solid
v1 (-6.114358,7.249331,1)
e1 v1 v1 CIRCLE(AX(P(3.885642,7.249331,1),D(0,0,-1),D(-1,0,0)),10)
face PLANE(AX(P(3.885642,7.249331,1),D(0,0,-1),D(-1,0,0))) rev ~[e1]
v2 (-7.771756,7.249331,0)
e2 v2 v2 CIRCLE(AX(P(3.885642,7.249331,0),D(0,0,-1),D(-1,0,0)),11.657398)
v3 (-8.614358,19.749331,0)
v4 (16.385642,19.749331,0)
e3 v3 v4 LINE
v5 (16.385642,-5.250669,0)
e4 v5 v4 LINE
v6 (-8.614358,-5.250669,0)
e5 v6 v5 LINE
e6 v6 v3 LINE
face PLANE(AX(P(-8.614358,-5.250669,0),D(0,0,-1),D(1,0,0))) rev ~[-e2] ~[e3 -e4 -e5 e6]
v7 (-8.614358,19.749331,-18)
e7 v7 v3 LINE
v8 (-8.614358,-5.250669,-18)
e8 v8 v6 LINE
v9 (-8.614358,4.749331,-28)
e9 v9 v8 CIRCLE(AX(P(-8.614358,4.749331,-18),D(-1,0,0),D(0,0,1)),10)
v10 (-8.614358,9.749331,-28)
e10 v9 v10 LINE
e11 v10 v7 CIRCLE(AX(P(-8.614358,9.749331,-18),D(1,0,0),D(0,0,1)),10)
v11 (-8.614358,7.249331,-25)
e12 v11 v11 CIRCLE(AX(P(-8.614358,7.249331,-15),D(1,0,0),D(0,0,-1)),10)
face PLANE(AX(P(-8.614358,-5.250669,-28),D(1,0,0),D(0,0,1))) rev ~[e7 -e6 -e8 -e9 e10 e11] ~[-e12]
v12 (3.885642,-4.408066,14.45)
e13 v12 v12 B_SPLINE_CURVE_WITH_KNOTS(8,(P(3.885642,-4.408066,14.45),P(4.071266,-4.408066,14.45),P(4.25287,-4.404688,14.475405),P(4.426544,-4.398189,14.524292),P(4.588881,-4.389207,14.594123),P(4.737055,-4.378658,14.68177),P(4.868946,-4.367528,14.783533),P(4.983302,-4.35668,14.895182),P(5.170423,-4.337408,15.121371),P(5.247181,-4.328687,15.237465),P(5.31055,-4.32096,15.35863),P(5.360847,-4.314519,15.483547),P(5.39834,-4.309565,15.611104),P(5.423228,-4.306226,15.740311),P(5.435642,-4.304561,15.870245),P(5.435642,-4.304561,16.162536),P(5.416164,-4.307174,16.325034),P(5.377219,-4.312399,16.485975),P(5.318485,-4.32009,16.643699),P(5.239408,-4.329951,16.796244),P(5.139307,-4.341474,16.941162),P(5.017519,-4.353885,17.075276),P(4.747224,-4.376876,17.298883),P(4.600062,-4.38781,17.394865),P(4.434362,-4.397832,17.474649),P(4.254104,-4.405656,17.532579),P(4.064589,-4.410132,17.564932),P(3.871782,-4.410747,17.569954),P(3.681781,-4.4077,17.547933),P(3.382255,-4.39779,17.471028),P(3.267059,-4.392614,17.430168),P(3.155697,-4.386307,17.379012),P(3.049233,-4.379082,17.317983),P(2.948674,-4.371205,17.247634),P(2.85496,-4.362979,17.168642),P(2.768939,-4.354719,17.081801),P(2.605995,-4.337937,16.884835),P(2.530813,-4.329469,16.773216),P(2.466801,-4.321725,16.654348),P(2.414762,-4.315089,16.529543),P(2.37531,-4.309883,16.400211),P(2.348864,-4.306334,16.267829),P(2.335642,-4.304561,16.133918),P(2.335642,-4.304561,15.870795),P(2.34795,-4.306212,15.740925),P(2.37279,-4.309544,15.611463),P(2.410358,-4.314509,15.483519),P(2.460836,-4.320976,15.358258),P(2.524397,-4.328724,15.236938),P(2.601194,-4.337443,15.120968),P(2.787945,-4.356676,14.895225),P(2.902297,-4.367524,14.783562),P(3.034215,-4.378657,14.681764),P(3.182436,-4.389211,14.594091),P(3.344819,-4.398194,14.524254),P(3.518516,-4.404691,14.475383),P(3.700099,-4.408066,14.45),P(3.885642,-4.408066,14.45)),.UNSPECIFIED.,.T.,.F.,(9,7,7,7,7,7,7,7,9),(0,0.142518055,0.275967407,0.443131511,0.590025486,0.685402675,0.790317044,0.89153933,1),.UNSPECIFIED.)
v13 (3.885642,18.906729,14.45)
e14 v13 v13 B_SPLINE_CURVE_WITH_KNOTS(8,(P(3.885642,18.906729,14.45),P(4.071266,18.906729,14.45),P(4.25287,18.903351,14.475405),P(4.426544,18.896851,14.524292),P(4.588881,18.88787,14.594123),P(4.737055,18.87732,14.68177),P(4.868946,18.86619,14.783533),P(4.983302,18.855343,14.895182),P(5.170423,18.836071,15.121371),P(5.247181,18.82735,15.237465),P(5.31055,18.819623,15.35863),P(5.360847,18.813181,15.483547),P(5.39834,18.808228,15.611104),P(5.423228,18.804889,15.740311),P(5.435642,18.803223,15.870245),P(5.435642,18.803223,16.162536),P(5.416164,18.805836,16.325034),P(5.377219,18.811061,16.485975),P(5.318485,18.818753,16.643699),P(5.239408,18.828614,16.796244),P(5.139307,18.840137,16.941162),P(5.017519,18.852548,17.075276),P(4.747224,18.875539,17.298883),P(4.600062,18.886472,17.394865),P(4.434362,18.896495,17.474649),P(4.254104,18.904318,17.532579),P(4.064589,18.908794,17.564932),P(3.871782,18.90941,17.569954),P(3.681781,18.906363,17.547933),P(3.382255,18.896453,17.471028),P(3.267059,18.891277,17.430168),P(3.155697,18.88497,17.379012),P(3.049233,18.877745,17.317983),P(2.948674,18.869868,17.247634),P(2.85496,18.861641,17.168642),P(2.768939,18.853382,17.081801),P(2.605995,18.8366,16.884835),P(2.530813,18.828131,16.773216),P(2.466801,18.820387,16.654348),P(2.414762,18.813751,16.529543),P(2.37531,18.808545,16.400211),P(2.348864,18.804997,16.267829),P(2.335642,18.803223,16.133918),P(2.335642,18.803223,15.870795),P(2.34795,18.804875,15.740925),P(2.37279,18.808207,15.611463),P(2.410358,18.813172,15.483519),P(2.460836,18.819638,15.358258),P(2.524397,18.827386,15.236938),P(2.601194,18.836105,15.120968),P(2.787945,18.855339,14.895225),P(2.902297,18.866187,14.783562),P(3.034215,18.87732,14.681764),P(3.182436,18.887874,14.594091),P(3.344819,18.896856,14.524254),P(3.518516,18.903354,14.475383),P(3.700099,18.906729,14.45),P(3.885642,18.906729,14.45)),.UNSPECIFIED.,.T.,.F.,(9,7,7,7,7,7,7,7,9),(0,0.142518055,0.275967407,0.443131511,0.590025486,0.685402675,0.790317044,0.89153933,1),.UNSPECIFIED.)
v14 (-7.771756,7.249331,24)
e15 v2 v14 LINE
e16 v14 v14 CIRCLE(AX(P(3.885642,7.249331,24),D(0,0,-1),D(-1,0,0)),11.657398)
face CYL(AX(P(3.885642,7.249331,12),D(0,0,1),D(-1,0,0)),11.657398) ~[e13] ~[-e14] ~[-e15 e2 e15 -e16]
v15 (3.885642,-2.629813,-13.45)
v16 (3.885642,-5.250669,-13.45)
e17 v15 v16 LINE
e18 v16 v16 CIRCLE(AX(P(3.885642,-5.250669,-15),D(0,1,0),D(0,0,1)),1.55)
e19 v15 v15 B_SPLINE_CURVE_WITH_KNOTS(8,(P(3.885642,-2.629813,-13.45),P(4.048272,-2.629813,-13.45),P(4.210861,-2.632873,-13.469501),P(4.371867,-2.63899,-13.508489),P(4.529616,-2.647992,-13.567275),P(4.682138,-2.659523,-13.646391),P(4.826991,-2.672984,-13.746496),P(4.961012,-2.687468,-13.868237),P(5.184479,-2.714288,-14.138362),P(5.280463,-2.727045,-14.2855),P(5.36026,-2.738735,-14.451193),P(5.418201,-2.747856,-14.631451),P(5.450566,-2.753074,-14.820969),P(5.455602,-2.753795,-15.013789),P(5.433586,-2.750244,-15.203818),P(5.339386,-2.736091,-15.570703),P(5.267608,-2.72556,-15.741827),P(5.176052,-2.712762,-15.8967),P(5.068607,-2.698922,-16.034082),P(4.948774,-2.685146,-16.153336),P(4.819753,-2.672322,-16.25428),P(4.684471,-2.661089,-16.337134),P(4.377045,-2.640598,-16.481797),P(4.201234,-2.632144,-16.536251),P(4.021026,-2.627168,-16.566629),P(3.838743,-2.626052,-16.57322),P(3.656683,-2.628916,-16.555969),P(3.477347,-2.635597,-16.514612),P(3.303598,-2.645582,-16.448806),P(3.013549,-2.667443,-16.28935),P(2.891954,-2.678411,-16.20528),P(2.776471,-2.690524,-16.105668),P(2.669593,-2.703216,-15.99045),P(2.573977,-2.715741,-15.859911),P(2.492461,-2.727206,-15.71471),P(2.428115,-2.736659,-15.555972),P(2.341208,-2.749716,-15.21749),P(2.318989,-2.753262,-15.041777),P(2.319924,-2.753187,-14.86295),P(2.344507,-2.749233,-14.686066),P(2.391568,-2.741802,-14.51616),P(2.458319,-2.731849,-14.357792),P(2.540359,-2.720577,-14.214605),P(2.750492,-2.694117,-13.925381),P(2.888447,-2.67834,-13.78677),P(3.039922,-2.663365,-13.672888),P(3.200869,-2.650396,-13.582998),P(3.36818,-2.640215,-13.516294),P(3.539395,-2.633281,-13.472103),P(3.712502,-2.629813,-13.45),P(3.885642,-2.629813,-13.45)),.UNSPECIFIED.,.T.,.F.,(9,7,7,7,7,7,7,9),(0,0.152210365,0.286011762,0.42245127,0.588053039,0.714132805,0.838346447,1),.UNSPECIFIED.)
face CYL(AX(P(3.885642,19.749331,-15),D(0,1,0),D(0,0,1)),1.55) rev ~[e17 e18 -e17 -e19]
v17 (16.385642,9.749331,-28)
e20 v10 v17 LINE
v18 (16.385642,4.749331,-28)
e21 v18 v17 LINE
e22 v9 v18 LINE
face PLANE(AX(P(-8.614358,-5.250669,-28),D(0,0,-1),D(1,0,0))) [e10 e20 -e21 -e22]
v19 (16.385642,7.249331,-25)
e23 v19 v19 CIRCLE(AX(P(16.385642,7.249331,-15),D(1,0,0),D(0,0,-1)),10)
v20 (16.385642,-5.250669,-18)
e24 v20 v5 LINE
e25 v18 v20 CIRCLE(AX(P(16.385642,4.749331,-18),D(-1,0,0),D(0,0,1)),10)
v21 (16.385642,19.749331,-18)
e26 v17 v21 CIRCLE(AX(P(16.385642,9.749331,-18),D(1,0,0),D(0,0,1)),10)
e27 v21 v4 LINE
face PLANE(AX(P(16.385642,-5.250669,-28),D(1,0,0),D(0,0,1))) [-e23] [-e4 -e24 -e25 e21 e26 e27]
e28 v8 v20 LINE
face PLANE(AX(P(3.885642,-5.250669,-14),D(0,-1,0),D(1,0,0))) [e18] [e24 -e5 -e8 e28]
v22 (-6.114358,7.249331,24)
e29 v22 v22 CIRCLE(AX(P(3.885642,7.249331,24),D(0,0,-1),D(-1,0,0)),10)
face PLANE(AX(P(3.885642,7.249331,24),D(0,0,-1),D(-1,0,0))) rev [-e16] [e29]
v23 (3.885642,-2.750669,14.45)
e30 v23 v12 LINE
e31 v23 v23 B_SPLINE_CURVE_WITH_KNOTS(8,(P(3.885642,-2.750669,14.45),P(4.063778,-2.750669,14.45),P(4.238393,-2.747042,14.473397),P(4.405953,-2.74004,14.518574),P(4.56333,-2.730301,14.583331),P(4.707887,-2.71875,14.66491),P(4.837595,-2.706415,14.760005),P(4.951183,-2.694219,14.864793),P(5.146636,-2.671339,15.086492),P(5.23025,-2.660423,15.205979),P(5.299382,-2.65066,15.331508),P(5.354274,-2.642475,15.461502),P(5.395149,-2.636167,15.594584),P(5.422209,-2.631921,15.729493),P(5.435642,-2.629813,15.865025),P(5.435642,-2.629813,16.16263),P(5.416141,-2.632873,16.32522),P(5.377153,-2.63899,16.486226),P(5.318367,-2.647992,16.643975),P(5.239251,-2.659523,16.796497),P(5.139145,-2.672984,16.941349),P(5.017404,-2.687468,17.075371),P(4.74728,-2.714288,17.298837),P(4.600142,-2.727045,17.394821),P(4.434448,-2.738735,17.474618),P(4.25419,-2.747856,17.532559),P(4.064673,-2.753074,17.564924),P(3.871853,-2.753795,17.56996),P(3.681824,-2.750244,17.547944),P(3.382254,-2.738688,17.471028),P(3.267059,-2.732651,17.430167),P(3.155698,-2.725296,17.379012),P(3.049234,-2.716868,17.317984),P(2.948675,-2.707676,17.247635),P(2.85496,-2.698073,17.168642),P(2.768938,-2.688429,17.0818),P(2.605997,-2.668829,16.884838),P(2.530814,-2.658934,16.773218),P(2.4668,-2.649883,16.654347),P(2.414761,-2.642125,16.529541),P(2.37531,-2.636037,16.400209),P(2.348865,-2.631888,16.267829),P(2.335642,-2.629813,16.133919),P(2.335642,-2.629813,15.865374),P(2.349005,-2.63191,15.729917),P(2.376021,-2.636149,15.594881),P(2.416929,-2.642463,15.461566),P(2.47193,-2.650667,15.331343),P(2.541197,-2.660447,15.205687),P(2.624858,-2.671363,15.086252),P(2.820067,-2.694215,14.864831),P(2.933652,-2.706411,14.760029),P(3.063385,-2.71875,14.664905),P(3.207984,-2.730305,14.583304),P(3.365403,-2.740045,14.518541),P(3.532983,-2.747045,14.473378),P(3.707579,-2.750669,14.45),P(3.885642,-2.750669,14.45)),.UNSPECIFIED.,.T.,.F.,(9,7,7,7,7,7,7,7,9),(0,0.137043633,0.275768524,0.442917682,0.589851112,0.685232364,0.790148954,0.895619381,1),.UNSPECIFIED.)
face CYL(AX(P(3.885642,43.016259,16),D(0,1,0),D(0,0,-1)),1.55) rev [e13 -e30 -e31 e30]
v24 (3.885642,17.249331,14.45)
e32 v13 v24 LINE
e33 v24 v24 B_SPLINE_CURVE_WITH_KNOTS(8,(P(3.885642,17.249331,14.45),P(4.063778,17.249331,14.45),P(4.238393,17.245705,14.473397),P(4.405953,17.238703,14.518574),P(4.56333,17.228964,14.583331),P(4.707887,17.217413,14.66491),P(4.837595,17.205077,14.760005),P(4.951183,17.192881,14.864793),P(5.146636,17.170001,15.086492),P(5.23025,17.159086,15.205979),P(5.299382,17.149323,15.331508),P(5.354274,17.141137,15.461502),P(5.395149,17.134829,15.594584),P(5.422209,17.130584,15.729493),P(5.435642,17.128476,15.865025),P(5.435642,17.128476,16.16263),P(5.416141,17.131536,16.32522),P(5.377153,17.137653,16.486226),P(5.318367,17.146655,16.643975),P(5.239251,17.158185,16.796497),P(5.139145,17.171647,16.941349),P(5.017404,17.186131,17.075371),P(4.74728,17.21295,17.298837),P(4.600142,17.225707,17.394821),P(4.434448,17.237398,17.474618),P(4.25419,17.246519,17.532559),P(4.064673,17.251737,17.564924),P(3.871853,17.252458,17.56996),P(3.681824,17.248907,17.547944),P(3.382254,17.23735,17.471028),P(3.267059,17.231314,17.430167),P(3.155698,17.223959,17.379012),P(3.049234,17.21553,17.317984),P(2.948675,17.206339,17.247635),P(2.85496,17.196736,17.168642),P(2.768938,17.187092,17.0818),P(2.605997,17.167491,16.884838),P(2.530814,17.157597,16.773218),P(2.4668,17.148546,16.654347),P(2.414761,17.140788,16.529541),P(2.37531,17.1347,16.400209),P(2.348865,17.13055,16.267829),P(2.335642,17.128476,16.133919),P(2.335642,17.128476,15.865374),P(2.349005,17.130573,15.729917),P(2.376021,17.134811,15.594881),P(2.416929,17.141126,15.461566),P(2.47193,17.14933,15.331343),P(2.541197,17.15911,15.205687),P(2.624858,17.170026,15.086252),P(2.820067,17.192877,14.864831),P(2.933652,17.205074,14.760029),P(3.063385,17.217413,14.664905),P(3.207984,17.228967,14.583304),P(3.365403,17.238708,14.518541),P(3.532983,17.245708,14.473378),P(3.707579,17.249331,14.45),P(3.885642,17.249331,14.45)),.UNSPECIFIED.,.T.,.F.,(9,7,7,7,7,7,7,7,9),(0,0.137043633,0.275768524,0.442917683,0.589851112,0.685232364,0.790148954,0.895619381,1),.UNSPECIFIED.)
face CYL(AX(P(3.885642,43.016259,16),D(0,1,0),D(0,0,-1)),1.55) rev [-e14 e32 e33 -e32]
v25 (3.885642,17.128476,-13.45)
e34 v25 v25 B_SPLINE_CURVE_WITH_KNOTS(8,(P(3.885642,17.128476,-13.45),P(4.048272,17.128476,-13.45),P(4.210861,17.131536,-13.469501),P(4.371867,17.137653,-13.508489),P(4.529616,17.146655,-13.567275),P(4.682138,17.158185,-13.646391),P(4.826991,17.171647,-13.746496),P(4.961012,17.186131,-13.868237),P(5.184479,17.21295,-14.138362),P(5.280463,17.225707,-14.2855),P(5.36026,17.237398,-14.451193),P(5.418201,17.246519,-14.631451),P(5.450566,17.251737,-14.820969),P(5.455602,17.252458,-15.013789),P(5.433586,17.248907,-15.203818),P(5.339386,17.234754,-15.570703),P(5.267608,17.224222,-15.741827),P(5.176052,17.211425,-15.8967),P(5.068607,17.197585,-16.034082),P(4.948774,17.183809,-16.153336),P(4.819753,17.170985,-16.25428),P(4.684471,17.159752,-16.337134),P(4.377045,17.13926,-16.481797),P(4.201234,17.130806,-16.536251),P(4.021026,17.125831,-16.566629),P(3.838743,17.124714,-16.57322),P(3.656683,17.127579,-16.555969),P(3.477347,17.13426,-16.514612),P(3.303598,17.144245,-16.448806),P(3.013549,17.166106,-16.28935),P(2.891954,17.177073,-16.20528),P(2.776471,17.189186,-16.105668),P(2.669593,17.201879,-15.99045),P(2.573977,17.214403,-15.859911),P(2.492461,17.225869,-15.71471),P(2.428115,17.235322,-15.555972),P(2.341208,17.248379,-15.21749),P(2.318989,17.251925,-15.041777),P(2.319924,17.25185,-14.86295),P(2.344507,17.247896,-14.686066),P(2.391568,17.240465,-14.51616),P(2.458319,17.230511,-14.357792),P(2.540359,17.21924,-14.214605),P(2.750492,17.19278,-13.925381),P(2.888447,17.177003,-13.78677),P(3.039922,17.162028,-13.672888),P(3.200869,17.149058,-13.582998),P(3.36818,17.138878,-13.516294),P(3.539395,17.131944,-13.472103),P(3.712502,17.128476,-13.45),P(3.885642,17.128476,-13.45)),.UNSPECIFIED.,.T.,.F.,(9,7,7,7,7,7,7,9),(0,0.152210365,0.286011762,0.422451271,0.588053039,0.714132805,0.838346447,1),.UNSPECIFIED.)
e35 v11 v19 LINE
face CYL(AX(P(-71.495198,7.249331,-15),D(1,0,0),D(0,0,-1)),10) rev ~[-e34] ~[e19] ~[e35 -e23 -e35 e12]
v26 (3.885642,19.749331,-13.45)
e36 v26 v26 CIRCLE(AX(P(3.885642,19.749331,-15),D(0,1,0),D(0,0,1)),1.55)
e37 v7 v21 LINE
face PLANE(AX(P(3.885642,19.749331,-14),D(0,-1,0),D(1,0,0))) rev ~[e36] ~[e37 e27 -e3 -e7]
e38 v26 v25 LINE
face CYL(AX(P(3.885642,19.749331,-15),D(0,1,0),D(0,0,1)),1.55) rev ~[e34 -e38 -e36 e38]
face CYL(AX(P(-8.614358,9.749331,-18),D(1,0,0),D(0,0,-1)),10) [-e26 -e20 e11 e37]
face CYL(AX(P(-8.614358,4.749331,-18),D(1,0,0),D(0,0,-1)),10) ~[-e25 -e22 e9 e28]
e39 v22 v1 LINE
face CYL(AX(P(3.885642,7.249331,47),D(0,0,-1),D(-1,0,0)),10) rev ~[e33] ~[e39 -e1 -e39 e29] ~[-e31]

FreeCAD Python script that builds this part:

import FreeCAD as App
import Part
import Sketcher
Q = App.Units.Quantity


def edges_at(feature, points):
    """Names of the edges that pass closest to the given points."""
    edges = feature.Shape.Edges
    near = lambda p: min(range(len(edges)), key=lambda i: edges[i].distToShape(Part.Vertex(*p))[0])
    return sorted({f"Edge{near(p) + 1}" for p in points})


def add_polygon(sketch, points):
    """Adds a closed chain of lines whose ends are joined by coincident constraints."""
    first, n = sketch.GeometryCount, len(points)
    for a, b in zip(points, points[1:] + points[:1]):
        sketch.addGeometry(Part.LineSegment(App.Vector(*a, 0), App.Vector(*b, 0)), False)
    for i in range(n):
        sketch.addConstraint(Sketcher.Constraint("Coincident", first + i, 2, first + (i + 1) % n, 1))

doc = App.newDocument("Part")
body = doc.addObject("PartDesign::Body", "Body")

# Sketch on XZ plane
sketch1 = body.newObject("Sketcher::SketchObject", "Sketch")
sketch1.AttachmentSupport = (doc.getObject("XZ_Plane"), [""])
sketch1.MapMode = "FlatFace"
sketch1.AttachmentOffset = App.Placement(App.Vector(0, 0, 5.250669), App.Rotation())
add_polygon(sketch1, [(-8.614358, 0), (-8.614358, -28), (16.385642, -28), (16.385642, 0)])  # lines 0-3
sketch1.addConstraint([
    Sketcher.Constraint("Vertical", 0),
    Sketcher.Constraint("Horizontal", 1),
    Sketcher.Constraint("Vertical", 2),
    Sketcher.Constraint("Horizontal", 3),
    Sketcher.Constraint("PointOnObject", 2, 2, -1),
    Sketcher.Constraint("DistanceX", 1, 1, 1, 2, Q("25 mm")),
    Sketcher.Constraint("DistanceY", 0, 2, 0, 1, Q("28 mm")),
    Sketcher.Constraint("DistanceX", 0, 2, -1, 1, Q("8.614358 mm")),
])
pad1 = body.newObject("PartDesign::Pad", "Pad")
pad1.Profile = sketch1
pad1.Length = 25
pad1.Reversed = True

# Sketch on XZ plane
sketch2 = body.newObject("Sketcher::SketchObject", "Sketch001")
sketch2.AttachmentSupport = (doc.getObject("XZ_Plane"), [""])
sketch2.MapMode = "FlatFace"
sketch2.AttachmentOffset = App.Placement(App.Vector(0, 0, -7.249331), App.Rotation())
add_polygon(sketch2, [(3.885642, 24), (3.885642, 0), (15.543039, 0), (15.543039, 24)])  # lines 0-3
sketch2.addGeometry(Part.LineSegment(App.Vector(3.885642, 24, 0), App.Vector(3.885642, 0, 0)), True)  # axis
sketch2.addConstraint([
    Sketcher.Constraint("Vertical", 0),
    Sketcher.Constraint("Horizontal", 1),
    Sketcher.Constraint("Vertical", 2),
    Sketcher.Constraint("Horizontal", 3),
    Sketcher.Constraint("Vertical", 4),
    Sketcher.Constraint("Coincident", 4, 1, 3, 2),
    Sketcher.Constraint("PointOnObject", 0, 2, -1),
    Sketcher.Constraint("PointOnObject", 4, 2, -1),
    Sketcher.Constraint("DistanceY", 0, 2, 0, 1, Q("24 mm")),
    Sketcher.Constraint("DistanceX", 1, 1, 1, 2, Q("11.657398 mm")),
    Sketcher.Constraint("DistanceX", -1, 1, 0, 2, Q("3.885642 mm")),
])
revolution = body.newObject("PartDesign::Revolution", "Revolution")
revolution.Profile = sketch2
revolution.ReferenceAxis = (sketch2, ["Axis0"])
revolution.Angle = 360

# Sketch on YZ plane
sketch3 = body.newObject("Sketcher::SketchObject", "Sketch002")
sketch3.AttachmentSupport = (doc.getObject("YZ_Plane"), [""])
sketch3.MapMode = "FlatFace"
sketch3.AttachmentOffset = App.Placement(App.Vector(0, 0, -8.614358), App.Rotation())
sketch3.addGeometry(Part.Circle(App.Vector(7.249331, -15, 0), App.Vector(0, 0, 1), 10), False)
sketch3.addConstraint([
    Sketcher.Constraint("Diameter", 0, Q("20 mm")),
    Sketcher.Constraint("DistanceY", 0, 3, -1, 1, Q("15 mm")),
    Sketcher.Constraint("DistanceX", -1, 1, 0, 3, Q("7.249331 mm")),
])
doc.recompute()
hole = body.newObject("PartDesign::Hole", "Hole")
hole.Profile = sketch3
hole.ThreadType = "None"
hole.Diameter = 20
hole.DepthType = "ThroughAll"
hole.Reversed = True

# Sketch on XY plane
sketch4 = body.newObject("Sketcher::SketchObject", "Sketch003")
sketch4.AttachmentSupport = (doc.getObject("XY_Plane"), [""])
sketch4.MapMode = "FlatFace"
sketch4.AttachmentOffset = App.Placement(App.Vector(0, 0, 24), App.Rotation())
sketch4.addGeometry(Part.Circle(App.Vector(3.885642, 7.249331, 0), App.Vector(0, 0, 1), 10), False)
sketch4.addConstraint([
    Sketcher.Constraint("Diameter", 0, Q("20 mm")),
    Sketcher.Constraint("DistanceX", -1, 1, 0, 3, Q("3.885642 mm")),
    Sketcher.Constraint("DistanceY", -1, 1, 0, 3, Q("7.249331 mm")),
])
doc.recompute()
hole2 = body.newObject("PartDesign::Hole", "Hole001")
hole2.Profile = sketch4
hole2.ThreadType = "None"
hole2.Diameter = 20
hole2.DepthType = "Dimension"
hole2.Depth = 23
hole2.DrillPoint = "Flat"
doc.recompute()

fillet = body.newObject("PartDesign::Fillet", "Fillet")
fillet.Base = (hole2, edges_at(hole2, [(3.886, 19.749, -28), (3.886, -5.251, -28)]))
fillet.Radius = 10

# Sketch on XZ plane
sketch5 = body.newObject("Sketcher::SketchObject", "Sketch004")
sketch5.AttachmentSupport = (doc.getObject("XZ_Plane"), [""])
sketch5.MapMode = "FlatFace"
sketch5.AttachmentOffset = App.Placement(App.Vector(0, 0, -7.249331), App.Rotation())
sketch5.addGeometry(Part.Circle(App.Vector(3.885642, 16, 0), App.Vector(0, 0, 1), 1.55), False)
sketch5.addConstraint([
    Sketcher.Constraint("Diameter", 0, Q("3.1 mm")),
    Sketcher.Constraint("DistanceY", -1, 1, 0, 3, Q("16 mm")),
    Sketcher.Constraint("DistanceX", -1, 1, 0, 3, Q("3.885642 mm")),
])
pocket1 = body.newObject("PartDesign::Pocket", "Pocket")
pocket1.Profile = sketch5
pocket1.Type = "ThroughAll"
pocket1.Midplane = True

# Sketch on XZ plane
sketch6 = body.newObject("Sketcher::SketchObject", "Sketch005")
sketch6.AttachmentSupport = (doc.getObject("XZ_Plane"), [""])
sketch6.MapMode = "FlatFace"
sketch6.AttachmentOffset = App.Placement(App.Vector(0, 0, -19.749331), App.Rotation())
sketch6.addGeometry(Part.Circle(App.Vector(3.885642, -15, 0), App.Vector(0, 0, 1), 1.55), False)
sketch6.addConstraint([
    Sketcher.Constraint("Diameter", 0, Q("3.1 mm")),
    Sketcher.Constraint("DistanceY", 0, 3, -1, 1, Q("15 mm")),
    Sketcher.Constraint("DistanceX", -1, 1, 0, 3, Q("3.885642 mm")),
])
pocket2 = body.newObject("PartDesign::Pocket", "Pocket001")
pocket2.Profile = sketch6
pocket2.Type = "ThroughAll"
pocket2.Reversed = True

doc.recompute()
